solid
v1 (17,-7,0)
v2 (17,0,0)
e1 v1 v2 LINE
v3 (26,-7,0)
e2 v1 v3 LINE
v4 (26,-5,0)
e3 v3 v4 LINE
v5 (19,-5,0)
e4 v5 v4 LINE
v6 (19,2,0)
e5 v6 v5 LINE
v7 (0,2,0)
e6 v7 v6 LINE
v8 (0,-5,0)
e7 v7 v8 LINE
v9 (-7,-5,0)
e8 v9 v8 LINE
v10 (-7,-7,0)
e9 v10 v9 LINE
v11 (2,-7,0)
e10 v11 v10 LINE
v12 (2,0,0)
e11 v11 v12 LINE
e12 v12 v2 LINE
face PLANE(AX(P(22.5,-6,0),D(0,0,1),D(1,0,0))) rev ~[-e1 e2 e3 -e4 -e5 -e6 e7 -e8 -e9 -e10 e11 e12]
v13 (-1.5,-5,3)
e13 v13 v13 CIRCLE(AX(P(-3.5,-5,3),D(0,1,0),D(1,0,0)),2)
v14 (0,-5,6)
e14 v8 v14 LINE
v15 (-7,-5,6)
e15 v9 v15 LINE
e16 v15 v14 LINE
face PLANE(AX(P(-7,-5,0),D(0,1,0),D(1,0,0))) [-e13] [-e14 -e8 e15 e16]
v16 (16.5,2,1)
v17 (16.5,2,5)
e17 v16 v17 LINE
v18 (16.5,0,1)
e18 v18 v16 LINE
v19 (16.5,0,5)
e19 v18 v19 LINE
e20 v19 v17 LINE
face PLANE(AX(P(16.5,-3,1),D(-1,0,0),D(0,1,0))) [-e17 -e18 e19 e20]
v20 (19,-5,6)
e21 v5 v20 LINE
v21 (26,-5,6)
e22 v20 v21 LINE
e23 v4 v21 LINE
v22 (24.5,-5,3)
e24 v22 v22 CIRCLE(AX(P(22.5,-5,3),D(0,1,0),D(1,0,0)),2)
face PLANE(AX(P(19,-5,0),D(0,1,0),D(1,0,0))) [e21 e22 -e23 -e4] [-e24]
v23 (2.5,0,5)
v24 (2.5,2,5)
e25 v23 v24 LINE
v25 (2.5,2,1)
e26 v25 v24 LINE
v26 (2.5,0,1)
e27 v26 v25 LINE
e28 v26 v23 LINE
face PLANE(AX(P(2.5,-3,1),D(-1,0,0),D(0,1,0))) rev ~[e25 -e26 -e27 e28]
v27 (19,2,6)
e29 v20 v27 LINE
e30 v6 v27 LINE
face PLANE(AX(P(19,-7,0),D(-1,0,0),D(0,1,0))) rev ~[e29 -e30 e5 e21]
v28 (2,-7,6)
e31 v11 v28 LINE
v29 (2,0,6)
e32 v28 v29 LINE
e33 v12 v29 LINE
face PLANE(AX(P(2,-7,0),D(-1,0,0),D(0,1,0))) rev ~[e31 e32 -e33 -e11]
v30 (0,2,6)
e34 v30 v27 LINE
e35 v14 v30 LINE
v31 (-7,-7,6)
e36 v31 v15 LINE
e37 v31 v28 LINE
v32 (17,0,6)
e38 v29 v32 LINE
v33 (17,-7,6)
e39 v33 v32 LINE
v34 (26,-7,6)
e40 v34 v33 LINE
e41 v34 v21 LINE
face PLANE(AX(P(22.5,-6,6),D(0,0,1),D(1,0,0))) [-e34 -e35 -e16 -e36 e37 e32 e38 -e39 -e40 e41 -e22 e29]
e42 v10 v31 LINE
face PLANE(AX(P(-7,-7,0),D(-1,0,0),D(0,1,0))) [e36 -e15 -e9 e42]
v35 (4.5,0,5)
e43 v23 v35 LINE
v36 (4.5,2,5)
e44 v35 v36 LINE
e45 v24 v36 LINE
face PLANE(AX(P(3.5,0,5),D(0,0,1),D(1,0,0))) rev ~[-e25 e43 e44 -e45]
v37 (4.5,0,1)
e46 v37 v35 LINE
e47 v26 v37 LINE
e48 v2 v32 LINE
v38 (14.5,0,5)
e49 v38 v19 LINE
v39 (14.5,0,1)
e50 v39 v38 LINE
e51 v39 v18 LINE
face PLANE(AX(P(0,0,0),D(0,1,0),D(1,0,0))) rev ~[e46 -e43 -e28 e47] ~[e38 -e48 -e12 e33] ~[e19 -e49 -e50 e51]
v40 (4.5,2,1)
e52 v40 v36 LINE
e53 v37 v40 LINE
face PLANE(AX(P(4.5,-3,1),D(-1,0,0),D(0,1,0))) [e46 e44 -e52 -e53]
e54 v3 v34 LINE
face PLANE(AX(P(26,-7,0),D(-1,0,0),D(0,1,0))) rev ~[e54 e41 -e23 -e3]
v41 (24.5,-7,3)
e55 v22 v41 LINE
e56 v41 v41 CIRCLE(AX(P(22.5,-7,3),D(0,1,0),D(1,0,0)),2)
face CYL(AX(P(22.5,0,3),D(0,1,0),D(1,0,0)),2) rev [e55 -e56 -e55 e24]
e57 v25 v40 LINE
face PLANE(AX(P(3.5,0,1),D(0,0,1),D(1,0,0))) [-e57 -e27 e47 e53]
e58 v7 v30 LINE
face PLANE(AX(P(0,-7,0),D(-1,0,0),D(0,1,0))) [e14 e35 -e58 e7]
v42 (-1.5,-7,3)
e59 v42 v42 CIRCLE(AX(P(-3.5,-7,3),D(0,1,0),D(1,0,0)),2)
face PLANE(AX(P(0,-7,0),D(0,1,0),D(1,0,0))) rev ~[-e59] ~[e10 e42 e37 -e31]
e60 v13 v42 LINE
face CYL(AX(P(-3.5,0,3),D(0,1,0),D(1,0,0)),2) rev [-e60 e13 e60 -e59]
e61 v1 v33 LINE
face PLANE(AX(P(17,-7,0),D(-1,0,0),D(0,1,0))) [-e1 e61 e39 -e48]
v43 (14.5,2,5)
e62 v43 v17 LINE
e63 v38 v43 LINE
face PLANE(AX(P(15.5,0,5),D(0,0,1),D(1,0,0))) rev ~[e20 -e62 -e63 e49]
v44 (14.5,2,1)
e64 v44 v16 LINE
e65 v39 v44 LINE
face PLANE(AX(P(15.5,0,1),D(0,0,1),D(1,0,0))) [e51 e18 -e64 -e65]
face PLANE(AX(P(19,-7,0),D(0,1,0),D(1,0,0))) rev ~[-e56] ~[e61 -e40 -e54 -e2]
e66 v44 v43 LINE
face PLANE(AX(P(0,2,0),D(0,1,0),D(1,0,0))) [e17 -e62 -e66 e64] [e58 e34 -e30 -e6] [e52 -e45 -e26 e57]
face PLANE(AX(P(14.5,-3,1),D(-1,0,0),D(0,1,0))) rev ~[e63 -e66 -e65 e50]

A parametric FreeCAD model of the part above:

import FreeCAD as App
import Part
import Sketcher

V = App.Vector
Q = App.Units.Quantity

doc = App.newDocument("Part")
body = doc.addObject("PartDesign::Body", "Body")

# Sketch on XZ plane
sketch1 = body.newObject("Sketcher::SketchObject", "Sketch")
sketch1.AttachmentSupport = (doc.getObject("XZ_Plane"), [""])
sketch1.MapMode = "FlatFace"
sketch1.addGeometry(Part.Circle(V(22.5, 3, 0), V(0, 0, 1), 2), False)
sketch1.addConstraint(Sketcher.Constraint("Diameter", 0, Q("4 mm")))
sketch1.addConstraint(Sketcher.Constraint("DistanceY", -1, 1, 0, 3, Q("3 mm")))
sketch1.addConstraint(Sketcher.Constraint("DistanceX", -1, 1, 0, 3, Q("22.5 mm")))
pad1 = body.newObject("PartDesign::Pad", "Pad")
pad1.Profile = sketch1
pad1.Length = 10
body2 = doc.addObject("PartDesign::Body", "Body001")

# Sketch on XY plane
sketch2 = body2.newObject("Sketcher::SketchObject", "Sketch001")
sketch2.AttachmentSupport = (doc.getObject("XY_Plane001"), [""])
sketch2.MapMode = "FlatFace"
sketch2.addGeometry(Part.LineSegment(V(19, -5, 0), V(19, -7, 0)), False)
sketch2.addGeometry(Part.LineSegment(V(19, -7, 0), V(26, -7, 0)), False)
sketch2.addGeometry(Part.LineSegment(V(26, -7, 0), V(26, -5, 0)), False)
sketch2.addGeometry(Part.LineSegment(V(26, -5, 0), V(19, -5, 0)), False)
sketch2.addConstraint(Sketcher.Constraint("Coincident", 0, 2, 1, 1))
sketch2.addConstraint(Sketcher.Constraint("Coincident", 1, 2, 2, 1))
sketch2.addConstraint(Sketcher.Constraint("Coincident", 2, 2, 3, 1))
sketch2.addConstraint(Sketcher.Constraint("Coincident", 3, 2, 0, 1))
sketch2.addConstraint(Sketcher.Constraint("Vertical", 0))
sketch2.addConstraint(Sketcher.Constraint("Horizontal", 1))
sketch2.addConstraint(Sketcher.Constraint("Vertical", 2))
sketch2.addConstraint(Sketcher.Constraint("Horizontal", 3))
sketch2.addConstraint(Sketcher.Constraint("DistanceX", 1, 1, 1, 2, Q("7 mm")))
sketch2.addConstraint(Sketcher.Constraint("DistanceY", 0, 2, 0, 1, Q("2 mm")))
sketch2.addConstraint(Sketcher.Constraint("DistanceX", -1, 1, 0, 2, Q("19 mm")))
sketch2.addConstraint(Sketcher.Constraint("DistanceY", 0, 2, -1, 1, Q("7 mm")))
pad2 = body2.newObject("PartDesign::Pad", "Pad001")
pad2.Profile = sketch2
pad2.Length = 6
doc.recompute()

boolean = body2.newObject("PartDesign::Boolean", "Boolean")
boolean.Type = "Cut"
boolean.addObjects([body])
body3 = doc.addObject("PartDesign::Body", "Body002")

# Sketch on XY plane
sketch3 = body3.newObject("Sketcher::SketchObject", "Sketch002")
sketch3.AttachmentSupport = (doc.getObject("XY_Plane002"), [""])
sketch3.MapMode = "FlatFace"
sketch3.addGeometry(Part.LineSegment(V(17, 0, 0), V(17, -7, 0)), False)
sketch3.addGeometry(Part.LineSegment(V(17, -7, 0), V(19, -7, 0)), False)
sketch3.addGeometry(Part.LineSegment(V(19, -7, 0), V(19, 0, 0)), False)
sketch3.addGeometry(Part.LineSegment(V(19, 0, 0), V(17, 0, 0)), False)
sketch3.addConstraint(Sketcher.Constraint("Coincident", 0, 2, 1, 1))
sketch3.addConstraint(Sketcher.Constraint("Coincident", 1, 2, 2, 1))
sketch3.addConstraint(Sketcher.Constraint("Coincident", 2, 2, 3, 1))
sketch3.addConstraint(Sketcher.Constraint("Coincident", 3, 2, 0, 1))
sketch3.addConstraint(Sketcher.Constraint("Vertical", 0))
sketch3.addConstraint(Sketcher.Constraint("Horizontal", 1))
sketch3.addConstraint(Sketcher.Constraint("Vertical", 2))
sketch3.addConstraint(Sketcher.Constraint("Horizontal", 3))
sketch3.addConstraint(Sketcher.Constraint("PointOnObject", 2, 2, -1))
sketch3.addConstraint(Sketcher.Constraint("DistanceX", 1, 1, 1, 2, Q("2 mm")))
sketch3.addConstraint(Sketcher.Constraint("DistanceY", 0, 2, 0, 1, Q("7 mm")))
sketch3.addConstraint(Sketcher.Constraint("DistanceX", -1, 1, 0, 2, Q("17 mm")))
pad3 = body3.newObject("PartDesign::Pad", "Pad002")
pad3.Profile = sketch3
pad3.Length = 6
body4 = doc.addObject("PartDesign::Body", "Body003")

# Sketch on XY plane
sketch4 = body4.newObject("Sketcher::SketchObject", "Sketch003")
sketch4.AttachmentSupport = (doc.getObject("XY_Plane003"), [""])
sketch4.MapMode = "FlatFace"
sketch4.addGeometry(Part.LineSegment(V(0, 0, 0), V(0, -7, 0)), False)
sketch4.addGeometry(Part.LineSegment(V(0, -7, 0), V(2, -7, 0)), False)
sketch4.addGeometry(Part.LineSegment(V(2, -7, 0), V(2, 0, 0)), False)
sketch4.addGeometry(Part.LineSegment(V(2, 0, 0), V(0, 0, 0)), False)
sketch4.addConstraint(Sketcher.Constraint("Coincident", 0, 2, 1, 1))
sketch4.addConstraint(Sketcher.Constraint("Coincident", 1, 2, 2, 1))
sketch4.addConstraint(Sketcher.Constraint("Coincident", 2, 2, 3, 1))
sketch4.addConstraint(Sketcher.Constraint("Coincident", 3, 2, 0, 1))
sketch4.addConstraint(Sketcher.Constraint("Vertical", 0))
sketch4.addConstraint(Sketcher.Constraint("Horizontal", 1))
sketch4.addConstraint(Sketcher.Constraint("Vertical", 2))
sketch4.addConstraint(Sketcher.Constraint("Horizontal", 3))
sketch4.addConstraint(Sketcher.Constraint("Coincident", 3, 2, -1, 1))
sketch4.addConstraint(Sketcher.Constraint("DistanceX", 1, 1, 1, 2, Q("2 mm")))
sketch4.addConstraint(Sketcher.Constraint("DistanceY", 0, 2, 0, 1, Q("7 mm")))
pad4 = body4.newObject("PartDesign::Pad", "Pad003")
pad4.Profile = sketch4
pad4.Length = 6
body5 = doc.addObject("PartDesign::Body", "Body004")

# Sketch on XZ plane
sketch5 = body5.newObject("Sketcher::SketchObject", "Sketch004")
sketch5.AttachmentSupport = (doc.getObject("XZ_Plane004"), [""])
sketch5.MapMode = "FlatFace"
sketch5.addGeometry(Part.Circle(V(-3.5, 3, 0), V(0, 0, 1), 2), False)
sketch5.addConstraint(Sketcher.Constraint("Diameter", 0, Q("4 mm")))
sketch5.addConstraint(Sketcher.Constraint("DistanceY", -1, 1, 0, 3, Q("3 mm")))
sketch5.addConstraint(Sketcher.Constraint("DistanceX", 0, 3, -1, 1, Q("3.5 mm")))
pad5 = body5.newObject("PartDesign::Pad", "Pad004")
pad5.Profile = sketch5
pad5.Length = 10
body6 = doc.addObject("PartDesign::Body", "Body005")

# Sketch on XY plane
sketch6 = body6.newObject("Sketcher::SketchObject", "Sketch005")
sketch6.AttachmentSupport = (doc.getObject("XY_Plane005"), [""])
sketch6.MapMode = "FlatFace"
sketch6.addGeometry(Part.LineSegment(V(-7, -5, 0), V(-7, -7, 0)), False)
sketch6.addGeometry(Part.LineSegment(V(-7, -7, 0), V(0, -7, 0)), False)
sketch6.addGeometry(Part.LineSegment(V(0, -7, 0), V(0, -5, 0)), False)
sketch6.addGeometry(Part.LineSegment(V(0, -5, 0), V(-7, -5, 0)), False)
sketch6.addConstraint(Sketcher.Constraint("Coincident", 0, 2, 1, 1))
sketch6.addConstraint(Sketcher.Constraint("Coincident", 1, 2, 2, 1))
sketch6.addConstraint(Sketcher.Constraint("Coincident", 2, 2, 3, 1))
sketch6.addConstraint(Sketcher.Constraint("Coincident", 3, 2, 0, 1))
sketch6.addConstraint(Sketcher.Constraint("Vertical", 0))
sketch6.addConstraint(Sketcher.Constraint("Horizontal", 1))
sketch6.addConstraint(Sketcher.Constraint("Vertical", 2))
sketch6.addConstraint(Sketcher.Constraint("Horizontal", 3))
sketch6.addConstraint(Sketcher.Constraint("PointOnObject", 1, 2, -2))
sketch6.addConstraint(Sketcher.Constraint("DistanceX", 1, 1, 1, 2, Q("7 mm")))
sketch6.addConstraint(Sketcher.Constraint("DistanceY", 0, 2, 0, 1, Q("2 mm")))
sketch6.addConstraint(Sketcher.Constraint("DistanceY", 0, 2, -1, 1, Q("7 mm")))
pad6 = body6.newObject("PartDesign::Pad", "Pad005")
pad6.Profile = sketch6
pad6.Length = 6
doc.recompute()

boolean2 = body6.newObject("PartDesign::Boolean", "Boolean001")
boolean2.Type = "Cut"
boolean2.addObjects([body5])
doc.recompute()

boolean3 = body6.newObject("PartDesign::Boolean", "Boolean002")
boolean3.Type = "Fuse"
boolean3.addObjects([body4])
body7 = doc.addObject("PartDesign::Body", "Body006")

# Sketch on XY plane
sketch7 = body7.newObject("Sketcher::SketchObject", "Sketch006")
sketch7.AttachmentSupport = (doc.getObject("XY_Plane006"), [""])
sketch7.MapMode = "FlatFace"
sketch7.AttachmentOffset = App.Placement(V(0, 0, 1), App.Rotation())
sketch7.addGeometry(Part.LineSegment(V(14.5, 3, 0), V(14.5, -3, 0)), False)
sketch7.addGeometry(Part.LineSegment(V(14.5, -3, 0), V(16.5, -3, 0)), False)
sketch7.addGeometry(Part.LineSegment(V(16.5, -3, 0), V(16.5, 3, 0)), False)
sketch7.addGeometry(Part.LineSegment(V(16.5, 3, 0), V(14.5, 3, 0)), False)
sketch7.addConstraint(Sketcher.Constraint("Coincident", 0, 2, 1, 1))
sketch7.addConstraint(Sketcher.Constraint("Coincident", 1, 2, 2, 1))
sketch7.addConstraint(Sketcher.Constraint("Coincident", 2, 2, 3, 1))
sketch7.addConstraint(Sketcher.Constraint("Coincident", 3, 2, 0, 1))
sketch7.addConstraint(Sketcher.Constraint("Vertical", 0))
sketch7.addConstraint(Sketcher.Constraint("Horizontal", 1))
sketch7.addConstraint(Sketcher.Constraint("Vertical", 2))
sketch7.addConstraint(Sketcher.Constraint("Horizontal", 3))
sketch7.addConstraint(Sketcher.Constraint("DistanceX", 1, 1, 1, 2, Q("2 mm")))
sketch7.addConstraint(Sketcher.Constraint("DistanceY", 0, 2, 0, 1, Q("6 mm")))
sketch7.addConstraint(Sketcher.Constraint("DistanceY", 0, 2, -1, 1, Q("3 mm")))
sketch7.addConstraint(Sketcher.Constraint("DistanceX", -1, 1, 0, 2, Q("14.5 mm")))
pad7 = body7.newObject("PartDesign::Pad", "Pad006")
pad7.Profile = sketch7
pad7.Length = 4
body8 = doc.addObject("PartDesign::Body", "Body007")

# Sketch on XY plane
sketch8 = body8.newObject("Sketcher::SketchObject", "Sketch007")
sketch8.AttachmentSupport = (doc.getObject("XY_Plane007"), [""])
sketch8.MapMode = "FlatFace"
sketch8.AttachmentOffset = App.Placement(V(0, 0, 1), App.Rotation())
sketch8.addGeometry(Part.LineSegment(V(2.5, 3, 0), V(2.5, -3, 0)), False)
sketch8.addGeometry(Part.LineSegment(V(2.5, -3, 0), V(4.5, -3, 0)), False)
sketch8.addGeometry(Part.LineSegment(V(4.5, -3, 0), V(4.5, 3, 0)), False)
sketch8.addGeometry(Part.LineSegment(V(4.5, 3, 0), V(2.5, 3, 0)), False)
sketch8.addConstraint(Sketcher.Constraint("Coincident", 0, 2, 1, 1))
sketch8.addConstraint(Sketcher.Constraint("Coincident", 1, 2, 2, 1))
sketch8.addConstraint(Sketcher.Constraint("Coincident", 2, 2, 3, 1))
sketch8.addConstraint(Sketcher.Constraint("Coincident", 3, 2, 0, 1))
sketch8.addConstraint(Sketcher.Constraint("Vertical", 0))
sketch8.addConstraint(Sketcher.Constraint("Horizontal", 1))
sketch8.addConstraint(Sketcher.Constraint("Vertical", 2))
sketch8.addConstraint(Sketcher.Constraint("Horizontal", 3))
sketch8.addConstraint(Sketcher.Constraint("DistanceX", 1, 1, 1, 2, Q("2 mm")))
sketch8.addConstraint(Sketcher.Constraint("DistanceY", 0, 2, 0, 1, Q("6 mm")))
sketch8.addConstraint(Sketcher.Constraint("DistanceY", 0, 2, -1, 1, Q("3 mm")))
sketch8.addConstraint(Sketcher.Constraint("DistanceX", -1, 1, 0, 2, Q("2.5 mm")))
pad8 = body8.newObject("PartDesign::Pad", "Pad007")
pad8.Profile = sketch8
pad8.Length = 4
body9 = doc.addObject("PartDesign::Body", "Body008")

# Sketch on XY plane
sketch9 = body9.newObject("Sketcher::SketchObject", "Sketch008")
sketch9.AttachmentSupport = (doc.getObject("XY_Plane008"), [""])
sketch9.MapMode = "FlatFace"
sketch9.addGeometry(Part.LineSegment(V(0, 2, 0), V(0, 0, 0)), False)
sketch9.addGeometry(Part.LineSegment(V(0, 0, 0), V(19, 0, 0)), False)
sketch9.addGeometry(Part.LineSegment(V(19, 0, 0), V(19, 2, 0)), False)
sketch9.addGeometry(Part.LineSegment(V(19, 2, 0), V(0, 2, 0)), False)
sketch9.addConstraint(Sketcher.Constraint("Coincident", 0, 2, 1, 1))
sketch9.addConstraint(Sketcher.Constraint("Coincident", 1, 2, 2, 1))
sketch9.addConstraint(Sketcher.Constraint("Coincident", 2, 2, 3, 1))
sketch9.addConstraint(Sketcher.Constraint("Coincident", 3, 2, 0, 1))
sketch9.addConstraint(Sketcher.Constraint("Vertical", 0))
sketch9.addConstraint(Sketcher.Constraint("Horizontal", 1))
sketch9.addConstraint(Sketcher.Constraint("Vertical", 2))
sketch9.addConstraint(Sketcher.Constraint("Horizontal", 3))
sketch9.addConstraint(Sketcher.Constraint("Coincident", 0, 2, -1, 1))
sketch9.addConstraint(Sketcher.Constraint("DistanceX", 1, 1, 1, 2, Q("19 mm")))
sketch9.addConstraint(Sketcher.Constraint("DistanceY", 0, 2, 0, 1, Q("2 mm")))
pad9 = body9.newObject("PartDesign::Pad", "Pad008")
pad9.Profile = sketch9
pad9.Length = 6
doc.recompute()

boolean4 = body9.newObject("PartDesign::Boolean", "Boolean003")
boolean4.Type = "Cut"
boolean4.addObjects([body8])
doc.recompute()

boolean5 = body9.newObject("PartDesign::Boolean", "Boolean004")
boolean5.Type = "Cut"
boolean5.addObjects([body7])
doc.recompute()

boolean6 = body9.newObject("PartDesign::Boolean", "Boolean005")
boolean6.Type = "Fuse"
boolean6.addObjects([body6])
doc.recompute()

boolean7 = body9.newObject("PartDesign::Boolean", "Boolean006")
boolean7.Type = "Fuse"
boolean7.addObjects([body3])
doc.recompute()

boolean8 = body9.newObject("PartDesign::Boolean", "Boolean007")
boolean8.Type = "Fuse"
boolean8.addObjects([body2])

doc.recompute()
